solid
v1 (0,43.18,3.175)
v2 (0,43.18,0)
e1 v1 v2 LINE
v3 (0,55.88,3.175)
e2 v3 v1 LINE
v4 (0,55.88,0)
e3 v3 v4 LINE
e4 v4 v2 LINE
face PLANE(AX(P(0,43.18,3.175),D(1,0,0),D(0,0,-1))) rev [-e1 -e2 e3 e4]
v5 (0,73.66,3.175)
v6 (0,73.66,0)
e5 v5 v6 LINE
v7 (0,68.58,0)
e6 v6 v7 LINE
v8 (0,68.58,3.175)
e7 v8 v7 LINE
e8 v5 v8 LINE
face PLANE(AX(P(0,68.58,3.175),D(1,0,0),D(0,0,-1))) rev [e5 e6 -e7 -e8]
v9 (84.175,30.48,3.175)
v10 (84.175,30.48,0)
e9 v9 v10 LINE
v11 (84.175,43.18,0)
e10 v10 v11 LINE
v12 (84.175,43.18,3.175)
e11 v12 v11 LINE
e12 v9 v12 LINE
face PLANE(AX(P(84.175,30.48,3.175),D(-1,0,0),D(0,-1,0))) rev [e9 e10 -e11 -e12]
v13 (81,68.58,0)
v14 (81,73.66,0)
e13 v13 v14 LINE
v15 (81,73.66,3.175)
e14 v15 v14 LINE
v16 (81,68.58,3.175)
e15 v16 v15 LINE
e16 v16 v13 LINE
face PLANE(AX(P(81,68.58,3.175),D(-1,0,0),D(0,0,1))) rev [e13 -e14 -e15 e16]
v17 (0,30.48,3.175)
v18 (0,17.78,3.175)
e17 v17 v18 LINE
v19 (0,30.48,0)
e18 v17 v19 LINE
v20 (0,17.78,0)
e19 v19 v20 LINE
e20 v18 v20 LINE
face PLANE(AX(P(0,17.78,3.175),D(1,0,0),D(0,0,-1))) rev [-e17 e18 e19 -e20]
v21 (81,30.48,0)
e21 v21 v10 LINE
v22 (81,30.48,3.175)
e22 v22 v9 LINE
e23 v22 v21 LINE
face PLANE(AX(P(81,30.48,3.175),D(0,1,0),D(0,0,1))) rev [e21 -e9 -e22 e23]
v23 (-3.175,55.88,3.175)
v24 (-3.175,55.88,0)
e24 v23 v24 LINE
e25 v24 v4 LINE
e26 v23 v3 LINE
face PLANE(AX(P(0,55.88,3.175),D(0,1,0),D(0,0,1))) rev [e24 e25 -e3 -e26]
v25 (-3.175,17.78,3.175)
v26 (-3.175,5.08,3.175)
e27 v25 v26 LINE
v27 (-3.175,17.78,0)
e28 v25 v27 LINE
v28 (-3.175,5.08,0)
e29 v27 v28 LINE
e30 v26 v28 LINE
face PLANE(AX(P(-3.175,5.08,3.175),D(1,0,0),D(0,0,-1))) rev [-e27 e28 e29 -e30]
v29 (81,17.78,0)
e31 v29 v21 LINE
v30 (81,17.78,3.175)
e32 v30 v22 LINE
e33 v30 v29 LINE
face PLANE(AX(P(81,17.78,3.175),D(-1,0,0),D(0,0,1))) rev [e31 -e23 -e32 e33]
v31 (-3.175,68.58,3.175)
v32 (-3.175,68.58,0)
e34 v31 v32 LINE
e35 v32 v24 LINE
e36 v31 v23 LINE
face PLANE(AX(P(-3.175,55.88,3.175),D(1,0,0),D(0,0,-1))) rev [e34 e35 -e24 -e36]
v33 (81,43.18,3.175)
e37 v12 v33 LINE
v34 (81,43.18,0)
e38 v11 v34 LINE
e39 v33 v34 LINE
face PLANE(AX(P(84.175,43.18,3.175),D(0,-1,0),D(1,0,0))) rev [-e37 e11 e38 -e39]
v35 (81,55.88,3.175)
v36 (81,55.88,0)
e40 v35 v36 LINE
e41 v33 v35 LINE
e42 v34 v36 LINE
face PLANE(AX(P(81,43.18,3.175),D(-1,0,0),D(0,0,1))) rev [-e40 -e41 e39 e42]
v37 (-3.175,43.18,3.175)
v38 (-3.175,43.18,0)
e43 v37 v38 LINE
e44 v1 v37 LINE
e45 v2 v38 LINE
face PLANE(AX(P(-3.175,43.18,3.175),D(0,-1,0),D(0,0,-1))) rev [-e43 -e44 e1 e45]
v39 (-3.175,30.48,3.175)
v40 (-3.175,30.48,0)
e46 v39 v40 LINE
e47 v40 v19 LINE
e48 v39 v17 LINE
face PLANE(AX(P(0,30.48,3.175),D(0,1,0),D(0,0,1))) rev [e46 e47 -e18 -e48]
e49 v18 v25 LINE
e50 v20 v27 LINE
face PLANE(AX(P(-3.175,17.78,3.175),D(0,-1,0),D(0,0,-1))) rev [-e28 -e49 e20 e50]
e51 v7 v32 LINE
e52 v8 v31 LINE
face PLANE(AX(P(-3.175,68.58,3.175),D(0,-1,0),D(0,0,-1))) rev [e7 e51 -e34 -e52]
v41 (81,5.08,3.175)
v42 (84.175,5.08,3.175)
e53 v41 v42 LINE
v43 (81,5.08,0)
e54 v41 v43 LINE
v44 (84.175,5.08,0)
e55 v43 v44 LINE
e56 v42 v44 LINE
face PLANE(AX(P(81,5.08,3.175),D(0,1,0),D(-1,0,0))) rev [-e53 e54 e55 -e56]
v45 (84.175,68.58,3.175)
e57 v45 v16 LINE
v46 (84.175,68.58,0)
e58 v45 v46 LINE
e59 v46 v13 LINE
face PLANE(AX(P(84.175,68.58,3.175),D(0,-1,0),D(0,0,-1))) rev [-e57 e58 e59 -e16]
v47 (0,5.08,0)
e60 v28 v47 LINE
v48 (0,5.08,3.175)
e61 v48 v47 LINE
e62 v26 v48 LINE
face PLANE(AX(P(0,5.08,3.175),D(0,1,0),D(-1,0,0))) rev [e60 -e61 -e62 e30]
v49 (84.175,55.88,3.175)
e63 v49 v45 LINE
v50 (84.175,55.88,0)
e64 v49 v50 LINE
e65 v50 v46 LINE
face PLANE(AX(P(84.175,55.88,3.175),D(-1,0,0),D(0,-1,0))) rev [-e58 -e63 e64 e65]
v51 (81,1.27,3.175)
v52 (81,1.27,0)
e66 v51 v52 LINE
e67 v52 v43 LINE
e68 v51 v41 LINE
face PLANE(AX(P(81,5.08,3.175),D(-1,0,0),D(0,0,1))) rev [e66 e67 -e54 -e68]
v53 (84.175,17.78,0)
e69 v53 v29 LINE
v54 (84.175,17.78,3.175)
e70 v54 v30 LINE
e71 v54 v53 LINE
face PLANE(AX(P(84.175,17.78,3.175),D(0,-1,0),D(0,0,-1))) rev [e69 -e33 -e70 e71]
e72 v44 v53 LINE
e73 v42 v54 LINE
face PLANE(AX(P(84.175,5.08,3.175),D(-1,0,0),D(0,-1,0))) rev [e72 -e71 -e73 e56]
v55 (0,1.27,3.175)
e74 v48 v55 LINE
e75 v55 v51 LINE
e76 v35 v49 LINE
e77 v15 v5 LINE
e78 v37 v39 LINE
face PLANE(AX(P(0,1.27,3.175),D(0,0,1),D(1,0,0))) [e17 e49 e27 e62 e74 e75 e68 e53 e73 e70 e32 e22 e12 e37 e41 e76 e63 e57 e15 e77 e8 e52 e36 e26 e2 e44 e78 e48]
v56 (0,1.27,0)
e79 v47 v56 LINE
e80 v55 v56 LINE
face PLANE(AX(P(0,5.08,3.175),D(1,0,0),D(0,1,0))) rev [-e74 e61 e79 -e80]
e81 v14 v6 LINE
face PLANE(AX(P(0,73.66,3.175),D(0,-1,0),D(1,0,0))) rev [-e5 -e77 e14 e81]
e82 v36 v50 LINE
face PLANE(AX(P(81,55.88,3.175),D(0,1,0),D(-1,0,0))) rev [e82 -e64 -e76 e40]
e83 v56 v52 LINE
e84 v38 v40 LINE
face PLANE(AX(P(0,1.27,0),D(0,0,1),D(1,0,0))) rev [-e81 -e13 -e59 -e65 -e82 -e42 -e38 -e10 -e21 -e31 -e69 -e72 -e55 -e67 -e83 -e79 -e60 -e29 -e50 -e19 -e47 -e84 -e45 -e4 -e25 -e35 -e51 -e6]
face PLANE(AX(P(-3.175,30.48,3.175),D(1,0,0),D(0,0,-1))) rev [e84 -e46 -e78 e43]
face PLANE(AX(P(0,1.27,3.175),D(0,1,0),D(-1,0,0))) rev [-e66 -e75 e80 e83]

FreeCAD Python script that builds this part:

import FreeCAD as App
import Part
import Sketcher

V = App.Vector
Q = App.Units.Quantity

doc = App.newDocument("Part")
body = doc.addObject("PartDesign::Body", "Body")

# Sketch on XY plane
sketch1 = body.newObject("Sketcher::SketchObject", "Sketch")
sketch1.AttachmentSupport = (doc.getObject("XY_Plane"), [""])
sketch1.MapMode = "FlatFace"
sketch1.addGeometry([
    Part.LineSegment(V(-3.175, 5.08, 0), V(0, 5.08, 0)),  # 0
    Part.LineSegment(V(0, 5.08, 0), V(0, 1.27, 0)),  # 1
    Part.LineSegment(V(0, 1.27, 0), V(81, 1.27, 0)),  # 2
    Part.LineSegment(V(81, 1.27, 0), V(81, 5.08, 0)),  # 3
    Part.LineSegment(V(81, 5.08, 0), V(84.175, 5.08, 0)),  # 4
    Part.LineSegment(V(84.175, 5.08, 0), V(84.175, 17.78, 0)),  # 5
    Part.LineSegment(V(84.175, 17.78, 0), V(81, 17.78, 0)),  # 6
    Part.LineSegment(V(81, 17.78, 0), V(81, 30.48, 0)),  # 7
    Part.LineSegment(V(81, 30.48, 0), V(84.175, 30.48, 0)),  # 8
    Part.LineSegment(V(84.175, 30.48, 0), V(84.175, 43.18, 0)),  # 9
    Part.LineSegment(V(84.175, 43.18, 0), V(81, 43.18, 0)),  # 10
    Part.LineSegment(V(81, 43.18, 0), V(81, 55.88, 0)),  # 11
    Part.LineSegment(V(81, 55.88, 0), V(84.175, 55.88, 0)),  # 12
    Part.LineSegment(V(84.175, 55.88, 0), V(84.175, 68.58, 0)),  # 13
    Part.LineSegment(V(84.175, 68.58, 0), V(81, 68.58, 0)),  # 14
    Part.LineSegment(V(81, 68.58, 0), V(81, 73.66, 0)),  # 15
    Part.LineSegment(V(81, 73.66, 0), V(0, 73.66, 0)),  # 16
    Part.LineSegment(V(0, 73.66, 0), V(0, 68.58, 0)),  # 17
    Part.LineSegment(V(0, 68.58, 0), V(-3.175, 68.58, 0)),  # 18
    Part.LineSegment(V(-3.175, 68.58, 0), V(-3.175, 55.88, 0)),  # 19
    Part.LineSegment(V(-3.175, 55.88, 0), V(0, 55.88, 0)),  # 20
    Part.LineSegment(V(0, 55.88, 0), V(0, 43.18, 0)),  # 21
    Part.LineSegment(V(0, 43.18, 0), V(-3.175, 43.18, 0)),  # 22
    Part.LineSegment(V(-3.175, 43.18, 0), V(-3.175, 30.48, 0)),  # 23
    Part.LineSegment(V(-3.175, 30.48, 0), V(0, 30.48, 0)),  # 24
    Part.LineSegment(V(0, 30.48, 0), V(0, 17.78, 0)),  # 25
    Part.LineSegment(V(0, 17.78, 0), V(-3.175, 17.78, 0)),  # 26
    Part.LineSegment(V(-3.175, 17.78, 0), V(-3.175, 5.08, 0)),  # 27
], False)
sketch1.addConstraint([
    Sketcher.Constraint("Coincident", 0, 2, 1, 1),
    Sketcher.Constraint("Coincident", 1, 2, 2, 1),
    Sketcher.Constraint("Coincident", 2, 2, 3, 1),
    Sketcher.Constraint("Coincident", 3, 2, 4, 1),
    Sketcher.Constraint("Coincident", 4, 2, 5, 1),
    Sketcher.Constraint("Coincident", 5, 2, 6, 1),
    Sketcher.Constraint("Coincident", 6, 2, 7, 1),
    Sketcher.Constraint("Coincident", 7, 2, 8, 1),
    Sketcher.Constraint("Coincident", 8, 2, 9, 1),
    Sketcher.Constraint("Coincident", 9, 2, 10, 1),
    Sketcher.Constraint("Coincident", 10, 2, 11, 1),
    Sketcher.Constraint("Coincident", 11, 2, 12, 1),
    Sketcher.Constraint("Coincident", 12, 2, 13, 1),
    Sketcher.Constraint("Coincident", 13, 2, 14, 1),
    Sketcher.Constraint("Coincident", 14, 2, 15, 1),
    Sketcher.Constraint("Coincident", 15, 2, 16, 1),
    Sketcher.Constraint("Coincident", 16, 2, 17, 1),
    Sketcher.Constraint("Coincident", 17, 2, 18, 1),
    Sketcher.Constraint("Coincident", 18, 2, 19, 1),
    Sketcher.Constraint("Coincident", 19, 2, 20, 1),
    Sketcher.Constraint("Coincident", 20, 2, 21, 1),
    Sketcher.Constraint("Coincident", 21, 2, 22, 1),
    Sketcher.Constraint("Coincident", 22, 2, 23, 1),
    Sketcher.Constraint("Coincident", 23, 2, 24, 1),
    Sketcher.Constraint("Coincident", 24, 2, 25, 1),
    Sketcher.Constraint("Coincident", 25, 2, 26, 1),
    Sketcher.Constraint("Coincident", 26, 2, 27, 1),
    Sketcher.Constraint("Coincident", 27, 2, 0, 1),
    Sketcher.Constraint("Horizontal", 0),
    Sketcher.Constraint("Vertical", 1),
    Sketcher.Constraint("Horizontal", 2),
    Sketcher.Constraint("Vertical", 3),
    Sketcher.Constraint("Horizontal", 4),
    Sketcher.Constraint("Vertical", 5),
    Sketcher.Constraint("Horizontal", 6),
    Sketcher.Constraint("Vertical", 7),
    Sketcher.Constraint("Horizontal", 8),
    Sketcher.Constraint("Vertical", 9),
    Sketcher.Constraint("Horizontal", 10),
    Sketcher.Constraint("Vertical", 11),
    Sketcher.Constraint("Horizontal", 12),
    Sketcher.Constraint("Vertical", 13),
    Sketcher.Constraint("Horizontal", 14),
    Sketcher.Constraint("Vertical", 15),
    Sketcher.Constraint("Horizontal", 16),
    Sketcher.Constraint("Vertical", 17),
    Sketcher.Constraint("Horizontal", 18),
    Sketcher.Constraint("Vertical", 19),
    Sketcher.Constraint("Horizontal", 20),
    Sketcher.Constraint("Vertical", 21),
    Sketcher.Constraint("Horizontal", 22),
    Sketcher.Constraint("Vertical", 23),
    Sketcher.Constraint("Horizontal", 24),
    Sketcher.Constraint("Vertical", 25),
    Sketcher.Constraint("Horizontal", 26),
    Sketcher.Constraint("Vertical", 27),
    Sketcher.Constraint("PointOnObject", 0, 2, -2),
    Sketcher.Constraint("PointOnObject", 16, 2, -2),
    Sketcher.Constraint("PointOnObject", 20, 2, -2),
    Sketcher.Constraint("PointOnObject", 24, 2, -2),
    Sketcher.Constraint("Horizontal", 0, 2, 3, 2),
    Sketcher.Constraint("Horizontal", 14, 2, 17, 2),
    Sketcher.Constraint("Horizontal", 12, 2, 19, 2),
    Sketcher.Constraint("Horizontal", 10, 2, 21, 2),
    Sketcher.Constraint("Horizontal", 8, 2, 23, 2),
    Sketcher.Constraint("Horizontal", 6, 2, 25, 2),
    Sketcher.Constraint("Vertical", 3, 2, 6, 2),
    Sketcher.Constraint("Vertical", 5, 2, 8, 2),
    Sketcher.Constraint("Vertical", 7, 2, 10, 2),
    Sketcher.Constraint("Vertical", 9, 2, 12, 2),
    Sketcher.Constraint("Vertical", 11, 2, 14, 2),
    Sketcher.Constraint("Vertical", 19, 2, 22, 2),
    Sketcher.Constraint("Vertical", 23, 2, 26, 2),
    Sketcher.Constraint("Equal", 0, 4),
    Sketcher.Constraint("Equal", 5, 7),
    Sketcher.Constraint("Equal", 7, 9),
    Sketcher.Constraint("Equal", 9, 11),
    Sketcher.Constraint("Equal", 11, 13),
    Sketcher.Constraint("DistanceY", 5, 1, 5, 2, Q("0.5 in")),
    Sketcher.Constraint("DistanceY", 15, 1, 15, 2, Q("0.2 in")),
    Sketcher.Constraint("DistanceY", 1, 2, 1, 1, Q("0.15 in")),
    Sketcher.Constraint("DistanceY", -1, 1, 0, 2, Q("0.2 in")),
    Sketcher.Constraint("DistanceX", 0, 1, 0, 2, Q("0.125 in")),
    Sketcher.Constraint("DistanceX", 2, 1, 2, 2, 81.0),
])
pad1 = body.newObject("PartDesign::Pad", "Pad")
pad1.Profile = sketch1
pad1.Length = Q("0.125 in")

doc.recompute()
